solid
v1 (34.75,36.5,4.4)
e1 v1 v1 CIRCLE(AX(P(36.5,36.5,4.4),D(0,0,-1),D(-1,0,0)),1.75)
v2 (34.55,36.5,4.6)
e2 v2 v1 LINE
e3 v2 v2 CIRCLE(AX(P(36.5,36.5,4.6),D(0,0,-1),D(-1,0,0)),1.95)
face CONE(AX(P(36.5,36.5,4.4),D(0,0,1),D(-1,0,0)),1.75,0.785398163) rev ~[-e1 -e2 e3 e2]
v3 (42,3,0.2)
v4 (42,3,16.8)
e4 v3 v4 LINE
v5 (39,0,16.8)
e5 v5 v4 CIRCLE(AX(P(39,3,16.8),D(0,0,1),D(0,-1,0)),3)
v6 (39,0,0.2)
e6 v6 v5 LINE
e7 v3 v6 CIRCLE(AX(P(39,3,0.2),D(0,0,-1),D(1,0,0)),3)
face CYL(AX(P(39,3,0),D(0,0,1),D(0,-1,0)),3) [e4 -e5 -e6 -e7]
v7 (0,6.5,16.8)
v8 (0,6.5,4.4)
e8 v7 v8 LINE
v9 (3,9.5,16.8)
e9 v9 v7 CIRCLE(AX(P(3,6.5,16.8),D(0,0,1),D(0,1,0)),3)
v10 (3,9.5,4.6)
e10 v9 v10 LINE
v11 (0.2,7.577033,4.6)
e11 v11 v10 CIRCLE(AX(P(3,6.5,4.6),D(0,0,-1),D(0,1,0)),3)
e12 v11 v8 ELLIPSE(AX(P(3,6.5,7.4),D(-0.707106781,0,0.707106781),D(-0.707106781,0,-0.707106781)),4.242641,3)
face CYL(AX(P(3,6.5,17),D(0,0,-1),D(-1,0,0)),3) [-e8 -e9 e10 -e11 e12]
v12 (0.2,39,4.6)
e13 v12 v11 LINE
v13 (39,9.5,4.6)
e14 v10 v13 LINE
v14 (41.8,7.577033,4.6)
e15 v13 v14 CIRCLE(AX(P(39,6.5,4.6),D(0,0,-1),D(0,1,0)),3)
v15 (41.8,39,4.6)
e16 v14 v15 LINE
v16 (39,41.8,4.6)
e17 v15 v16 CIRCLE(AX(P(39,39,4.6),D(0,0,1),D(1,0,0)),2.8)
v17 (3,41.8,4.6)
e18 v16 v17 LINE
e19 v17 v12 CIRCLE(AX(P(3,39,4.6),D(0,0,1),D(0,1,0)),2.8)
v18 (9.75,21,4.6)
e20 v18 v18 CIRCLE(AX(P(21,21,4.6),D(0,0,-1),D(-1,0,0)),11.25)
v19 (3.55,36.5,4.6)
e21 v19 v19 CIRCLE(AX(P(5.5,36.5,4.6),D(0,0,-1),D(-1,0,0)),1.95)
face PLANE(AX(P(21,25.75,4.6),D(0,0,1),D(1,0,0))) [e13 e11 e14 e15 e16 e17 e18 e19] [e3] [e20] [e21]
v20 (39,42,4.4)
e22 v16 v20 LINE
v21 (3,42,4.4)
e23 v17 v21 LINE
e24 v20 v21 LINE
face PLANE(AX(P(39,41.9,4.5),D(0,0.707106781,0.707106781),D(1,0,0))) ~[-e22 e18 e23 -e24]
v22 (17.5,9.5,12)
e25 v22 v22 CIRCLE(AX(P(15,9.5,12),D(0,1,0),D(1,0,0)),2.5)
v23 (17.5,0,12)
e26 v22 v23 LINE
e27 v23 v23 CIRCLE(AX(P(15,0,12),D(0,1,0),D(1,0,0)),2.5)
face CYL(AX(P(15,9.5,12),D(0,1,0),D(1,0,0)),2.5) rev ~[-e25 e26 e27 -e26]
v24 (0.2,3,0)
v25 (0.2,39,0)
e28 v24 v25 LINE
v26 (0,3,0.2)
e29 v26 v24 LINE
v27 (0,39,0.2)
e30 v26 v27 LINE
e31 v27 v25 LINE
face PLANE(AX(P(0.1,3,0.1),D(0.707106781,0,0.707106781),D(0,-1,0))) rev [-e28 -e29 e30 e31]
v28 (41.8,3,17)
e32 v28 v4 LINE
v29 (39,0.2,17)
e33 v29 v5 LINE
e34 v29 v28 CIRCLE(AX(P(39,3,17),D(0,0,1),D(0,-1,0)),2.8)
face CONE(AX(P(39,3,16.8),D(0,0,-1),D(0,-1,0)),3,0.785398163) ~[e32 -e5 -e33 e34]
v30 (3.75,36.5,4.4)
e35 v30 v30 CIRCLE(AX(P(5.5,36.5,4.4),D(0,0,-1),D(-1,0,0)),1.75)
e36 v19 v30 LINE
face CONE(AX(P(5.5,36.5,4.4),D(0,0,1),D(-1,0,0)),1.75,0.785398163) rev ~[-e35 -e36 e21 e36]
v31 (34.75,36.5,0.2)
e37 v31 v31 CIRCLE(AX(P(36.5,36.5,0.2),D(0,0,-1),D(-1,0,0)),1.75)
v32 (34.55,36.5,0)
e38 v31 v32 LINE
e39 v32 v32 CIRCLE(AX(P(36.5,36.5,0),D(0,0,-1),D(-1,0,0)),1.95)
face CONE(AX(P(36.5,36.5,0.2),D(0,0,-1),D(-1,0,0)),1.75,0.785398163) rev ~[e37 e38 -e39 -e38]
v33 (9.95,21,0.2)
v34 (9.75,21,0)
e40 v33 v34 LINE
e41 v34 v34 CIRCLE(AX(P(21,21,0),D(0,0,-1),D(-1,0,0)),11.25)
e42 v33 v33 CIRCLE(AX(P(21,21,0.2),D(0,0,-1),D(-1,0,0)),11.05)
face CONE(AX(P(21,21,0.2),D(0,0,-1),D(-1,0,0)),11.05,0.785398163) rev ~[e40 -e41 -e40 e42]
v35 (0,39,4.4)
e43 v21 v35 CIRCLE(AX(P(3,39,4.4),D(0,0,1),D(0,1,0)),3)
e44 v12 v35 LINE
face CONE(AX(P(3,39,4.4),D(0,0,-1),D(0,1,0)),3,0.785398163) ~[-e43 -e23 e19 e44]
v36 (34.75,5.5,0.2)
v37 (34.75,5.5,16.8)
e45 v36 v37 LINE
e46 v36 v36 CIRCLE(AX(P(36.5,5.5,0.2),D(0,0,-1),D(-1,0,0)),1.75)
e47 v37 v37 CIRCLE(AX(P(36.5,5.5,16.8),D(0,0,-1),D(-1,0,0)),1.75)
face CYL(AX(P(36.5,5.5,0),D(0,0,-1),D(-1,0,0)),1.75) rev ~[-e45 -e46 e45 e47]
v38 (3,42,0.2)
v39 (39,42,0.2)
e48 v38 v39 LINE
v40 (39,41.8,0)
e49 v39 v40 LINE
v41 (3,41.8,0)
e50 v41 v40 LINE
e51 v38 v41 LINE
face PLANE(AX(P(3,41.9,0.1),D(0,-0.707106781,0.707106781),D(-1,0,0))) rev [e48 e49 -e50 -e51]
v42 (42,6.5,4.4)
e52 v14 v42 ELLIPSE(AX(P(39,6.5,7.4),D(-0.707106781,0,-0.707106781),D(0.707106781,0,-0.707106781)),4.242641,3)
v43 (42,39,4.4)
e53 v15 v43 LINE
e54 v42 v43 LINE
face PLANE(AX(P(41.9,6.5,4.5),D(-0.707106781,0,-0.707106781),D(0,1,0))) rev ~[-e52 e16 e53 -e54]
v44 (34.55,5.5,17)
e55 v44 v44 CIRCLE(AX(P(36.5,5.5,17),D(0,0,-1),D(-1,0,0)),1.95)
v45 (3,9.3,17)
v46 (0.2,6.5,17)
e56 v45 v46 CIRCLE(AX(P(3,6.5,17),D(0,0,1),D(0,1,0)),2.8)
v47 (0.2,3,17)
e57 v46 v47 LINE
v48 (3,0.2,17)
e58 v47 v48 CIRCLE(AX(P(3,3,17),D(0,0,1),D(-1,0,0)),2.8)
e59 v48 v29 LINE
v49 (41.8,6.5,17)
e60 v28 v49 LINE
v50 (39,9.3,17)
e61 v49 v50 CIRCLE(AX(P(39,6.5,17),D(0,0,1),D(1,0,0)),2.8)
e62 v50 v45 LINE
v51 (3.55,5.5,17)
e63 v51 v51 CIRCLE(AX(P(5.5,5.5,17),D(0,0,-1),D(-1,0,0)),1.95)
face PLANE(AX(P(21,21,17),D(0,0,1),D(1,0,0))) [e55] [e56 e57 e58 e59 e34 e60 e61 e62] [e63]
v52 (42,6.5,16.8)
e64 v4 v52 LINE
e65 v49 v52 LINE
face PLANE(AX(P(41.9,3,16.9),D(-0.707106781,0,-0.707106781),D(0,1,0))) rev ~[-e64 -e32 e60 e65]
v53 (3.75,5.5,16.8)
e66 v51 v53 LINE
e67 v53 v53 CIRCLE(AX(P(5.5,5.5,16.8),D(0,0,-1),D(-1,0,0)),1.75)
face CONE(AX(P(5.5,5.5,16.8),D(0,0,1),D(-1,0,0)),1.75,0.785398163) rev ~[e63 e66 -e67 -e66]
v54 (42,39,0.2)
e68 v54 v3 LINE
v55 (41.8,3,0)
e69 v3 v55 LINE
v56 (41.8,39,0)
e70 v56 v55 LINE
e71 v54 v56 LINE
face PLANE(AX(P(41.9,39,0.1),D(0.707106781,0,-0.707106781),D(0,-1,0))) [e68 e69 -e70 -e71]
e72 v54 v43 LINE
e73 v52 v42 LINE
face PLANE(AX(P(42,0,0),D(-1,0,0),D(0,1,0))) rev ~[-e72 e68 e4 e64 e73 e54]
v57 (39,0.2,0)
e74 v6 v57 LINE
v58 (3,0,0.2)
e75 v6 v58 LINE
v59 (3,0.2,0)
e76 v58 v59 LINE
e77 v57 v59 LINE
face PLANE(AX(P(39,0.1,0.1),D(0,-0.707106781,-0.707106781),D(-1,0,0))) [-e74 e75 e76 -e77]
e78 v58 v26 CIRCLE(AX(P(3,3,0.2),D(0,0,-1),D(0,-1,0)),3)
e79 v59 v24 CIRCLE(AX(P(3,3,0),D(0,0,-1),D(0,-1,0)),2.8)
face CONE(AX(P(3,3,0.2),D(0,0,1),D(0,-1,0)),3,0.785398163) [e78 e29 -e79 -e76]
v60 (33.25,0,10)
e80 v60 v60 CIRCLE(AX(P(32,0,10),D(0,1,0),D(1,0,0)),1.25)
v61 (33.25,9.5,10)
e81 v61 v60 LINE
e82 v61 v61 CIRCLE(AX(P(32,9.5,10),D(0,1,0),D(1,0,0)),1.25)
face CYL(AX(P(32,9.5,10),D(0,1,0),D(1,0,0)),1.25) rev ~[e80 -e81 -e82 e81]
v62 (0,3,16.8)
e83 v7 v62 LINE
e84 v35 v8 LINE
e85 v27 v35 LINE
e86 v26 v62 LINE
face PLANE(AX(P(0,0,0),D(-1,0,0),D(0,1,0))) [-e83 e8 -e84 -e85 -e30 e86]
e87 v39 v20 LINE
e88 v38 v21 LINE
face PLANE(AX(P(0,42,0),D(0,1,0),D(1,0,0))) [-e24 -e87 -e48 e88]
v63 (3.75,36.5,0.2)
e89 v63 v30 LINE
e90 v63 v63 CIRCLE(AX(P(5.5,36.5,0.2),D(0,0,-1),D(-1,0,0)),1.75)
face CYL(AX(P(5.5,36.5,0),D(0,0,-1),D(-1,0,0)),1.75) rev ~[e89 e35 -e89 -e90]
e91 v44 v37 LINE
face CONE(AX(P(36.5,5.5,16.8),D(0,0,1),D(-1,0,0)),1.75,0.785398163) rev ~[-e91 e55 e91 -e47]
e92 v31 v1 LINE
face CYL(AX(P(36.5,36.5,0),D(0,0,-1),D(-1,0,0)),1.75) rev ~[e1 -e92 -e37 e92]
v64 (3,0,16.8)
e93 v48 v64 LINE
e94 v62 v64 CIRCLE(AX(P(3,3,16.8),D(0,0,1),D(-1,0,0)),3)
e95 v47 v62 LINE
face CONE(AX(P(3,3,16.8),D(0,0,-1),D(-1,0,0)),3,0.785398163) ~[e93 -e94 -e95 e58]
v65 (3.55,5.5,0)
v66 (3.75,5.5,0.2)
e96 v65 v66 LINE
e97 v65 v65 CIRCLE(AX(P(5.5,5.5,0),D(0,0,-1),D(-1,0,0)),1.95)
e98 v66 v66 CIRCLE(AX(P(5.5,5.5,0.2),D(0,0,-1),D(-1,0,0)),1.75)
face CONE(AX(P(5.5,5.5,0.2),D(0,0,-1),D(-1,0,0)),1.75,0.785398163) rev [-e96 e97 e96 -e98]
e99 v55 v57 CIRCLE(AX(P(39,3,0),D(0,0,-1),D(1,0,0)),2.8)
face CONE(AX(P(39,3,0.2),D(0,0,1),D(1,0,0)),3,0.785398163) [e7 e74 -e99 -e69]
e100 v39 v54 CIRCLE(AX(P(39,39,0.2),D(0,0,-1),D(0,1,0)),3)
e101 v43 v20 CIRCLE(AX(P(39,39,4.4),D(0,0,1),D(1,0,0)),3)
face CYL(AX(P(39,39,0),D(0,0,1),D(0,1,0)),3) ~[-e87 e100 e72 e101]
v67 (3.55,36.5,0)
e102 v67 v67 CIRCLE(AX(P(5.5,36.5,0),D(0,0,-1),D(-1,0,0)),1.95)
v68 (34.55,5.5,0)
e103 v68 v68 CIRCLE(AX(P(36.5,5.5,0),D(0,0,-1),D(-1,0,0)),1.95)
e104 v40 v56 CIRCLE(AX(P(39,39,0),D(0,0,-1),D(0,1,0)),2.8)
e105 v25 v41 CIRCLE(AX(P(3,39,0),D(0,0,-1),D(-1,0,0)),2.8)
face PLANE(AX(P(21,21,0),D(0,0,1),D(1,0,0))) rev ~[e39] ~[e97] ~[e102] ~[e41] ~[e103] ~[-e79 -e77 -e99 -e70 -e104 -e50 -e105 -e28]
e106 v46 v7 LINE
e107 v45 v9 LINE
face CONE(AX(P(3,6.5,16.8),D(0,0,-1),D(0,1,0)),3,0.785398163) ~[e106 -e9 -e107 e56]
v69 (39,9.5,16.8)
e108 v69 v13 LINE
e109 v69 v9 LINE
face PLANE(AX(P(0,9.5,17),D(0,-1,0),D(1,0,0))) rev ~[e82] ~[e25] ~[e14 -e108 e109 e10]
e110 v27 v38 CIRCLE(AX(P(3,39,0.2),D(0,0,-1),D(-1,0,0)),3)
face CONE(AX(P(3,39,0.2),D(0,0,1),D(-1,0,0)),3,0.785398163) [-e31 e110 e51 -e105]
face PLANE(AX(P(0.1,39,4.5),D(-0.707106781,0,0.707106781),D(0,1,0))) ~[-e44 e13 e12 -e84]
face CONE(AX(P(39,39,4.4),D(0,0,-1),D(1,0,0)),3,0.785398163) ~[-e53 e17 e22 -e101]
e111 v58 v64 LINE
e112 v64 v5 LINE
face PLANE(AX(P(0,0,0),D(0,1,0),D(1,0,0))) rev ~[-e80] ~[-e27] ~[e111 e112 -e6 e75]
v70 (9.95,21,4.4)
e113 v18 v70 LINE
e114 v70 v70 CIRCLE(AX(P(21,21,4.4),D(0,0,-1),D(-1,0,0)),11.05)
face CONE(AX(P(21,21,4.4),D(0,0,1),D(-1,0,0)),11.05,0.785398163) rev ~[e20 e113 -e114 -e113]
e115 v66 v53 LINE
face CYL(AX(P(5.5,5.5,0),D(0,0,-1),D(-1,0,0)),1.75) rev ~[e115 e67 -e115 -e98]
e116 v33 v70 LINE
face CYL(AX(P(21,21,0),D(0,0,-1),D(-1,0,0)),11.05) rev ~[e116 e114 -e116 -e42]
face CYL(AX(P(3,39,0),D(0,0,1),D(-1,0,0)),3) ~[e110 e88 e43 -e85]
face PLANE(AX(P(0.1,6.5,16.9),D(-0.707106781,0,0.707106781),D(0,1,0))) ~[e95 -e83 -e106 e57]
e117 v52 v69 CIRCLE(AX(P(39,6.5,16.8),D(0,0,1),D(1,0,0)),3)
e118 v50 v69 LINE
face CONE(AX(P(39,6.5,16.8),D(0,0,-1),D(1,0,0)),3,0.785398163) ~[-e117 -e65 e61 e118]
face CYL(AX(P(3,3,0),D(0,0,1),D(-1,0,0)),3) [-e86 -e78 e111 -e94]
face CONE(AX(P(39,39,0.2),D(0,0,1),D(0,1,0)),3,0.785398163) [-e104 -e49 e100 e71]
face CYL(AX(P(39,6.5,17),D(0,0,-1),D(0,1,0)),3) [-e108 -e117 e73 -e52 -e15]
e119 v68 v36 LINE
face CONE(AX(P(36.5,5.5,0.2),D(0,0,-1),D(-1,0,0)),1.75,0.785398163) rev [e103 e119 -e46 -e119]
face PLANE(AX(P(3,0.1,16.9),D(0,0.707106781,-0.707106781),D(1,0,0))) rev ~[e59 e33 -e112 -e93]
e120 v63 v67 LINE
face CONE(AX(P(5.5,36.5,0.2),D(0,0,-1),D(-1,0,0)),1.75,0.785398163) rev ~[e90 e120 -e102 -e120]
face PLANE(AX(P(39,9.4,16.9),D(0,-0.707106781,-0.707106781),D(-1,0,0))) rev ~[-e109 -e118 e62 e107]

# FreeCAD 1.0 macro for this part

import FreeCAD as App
import Part
import Sketcher

V = App.Vector
Q = App.Units.Quantity


def edges_at(feature, points):
    """Names of the edges that pass closest to the given points."""
    edges = feature.Shape.Edges
    near = lambda p: min(range(len(edges)), key=lambda i: edges[i].distToShape(Part.Vertex(*p))[0])
    return sorted({f"Edge{near(p) + 1}" for p in points})

doc = App.newDocument("Part")
params = doc.addObject("Spreadsheet::Sheet", "Params")
for row, (alias, value) in enumerate([
    ("sketch1_width", "42 mm"),
    ("pad1_length", "17 mm"),
    ("sketch2_width", "42 mm"),
    ("sketch2_height", "32.5 mm"),
    ("pocket1_length", "12.4 mm"),
    ("sketch3_diameter", "22.1 mm"),
    ("pocket2_length", "12.4 mm"),
    ("sketch4_diameter", "5 mm"),
    ("pocket3_length", "12.4 mm"),
    ("sketch5_diameter", "2.5 mm"),
    ("pocket4_length", "12.4 mm"),
    ("fillet_radius", "3 mm"),
    ("chamfer_size", "0.2 mm"),
    ("chamfer2_size", "0.2 mm"),
    ("chamfer3_size", "0.2 mm"),
    ("sketch6_diameter", "3.5 mm"),
    ("pocket5_length", "26 mm"),
    ("chamfer4_size", "0.2 mm"),
], start=1):
    params.set(f"A{row}", alias)
    params.set(f"B{row}", "=" + value)
    params.setAlias(f"B{row}", alias)

body = doc.addObject("PartDesign::Body", "Body")

sketch1 = body.newObject("Sketcher::SketchObject", "Sketch")
sketch1.AttachmentSupport = (doc.getObject("XY_Plane"), [""])
sketch1.MapMode = "FlatFace"
sketch1.addGeometry([
    Part.LineSegment(V(0, 42, 0), V(0, 0, 0)),
    Part.LineSegment(V(0, 0, 0), V(42, 0, 0)),
    Part.LineSegment(V(42, 0, 0), V(42, 42, 0)),
    Part.LineSegment(V(42, 42, 0), V(0, 42, 0)),
], False)
sketch1.addConstraint([
    Sketcher.Constraint("Coincident", 0, 2, 1, 1),
    Sketcher.Constraint("Coincident", 1, 2, 2, 1),
    Sketcher.Constraint("Coincident", 2, 2, 3, 1),
    Sketcher.Constraint("Coincident", 3, 2, 0, 1),
    Sketcher.Constraint("Vertical", 0),
    Sketcher.Constraint("Horizontal", 1),
    Sketcher.Constraint("Vertical", 2),
    Sketcher.Constraint("Horizontal", 3),
    Sketcher.Constraint("Coincident", 0, 2, -1, 1),
    Sketcher.Constraint("Equal", 3, 0),
    Sketcher.Constraint("DistanceX", 1, 1, 1, 2, Q("42 mm")),
])
sketch1.setExpression("Constraints[10]", "Params.sketch1_width")
pad1 = body.newObject("PartDesign::Pad", "Pad")
pad1.Profile = sketch1
pad1.setExpression("Length", "Params.pad1_length")

sketch2 = body.newObject("Sketcher::SketchObject", "Sketch001")
sketch2.AttachmentSupport = (doc.getObject("XY_Plane"), [""])
sketch2.MapMode = "FlatFace"
sketch2.AttachmentOffset = App.Placement(V(0, 0, 17), App.Rotation())
sketch2.addGeometry([
    Part.LineSegment(V(0, 42, 0), V(0, 10, 0)),
    Part.LineSegment(V(0, 10, 0), V(42, 10, 0)),
    Part.LineSegment(V(42, 10, 0), V(42, 42, 0)),
    Part.LineSegment(V(42, 42, 0), V(0, 42, 0)),
], False)
sketch2.addConstraint([
    Sketcher.Constraint("Coincident", 0, 2, 1, 1),
    Sketcher.Constraint("Coincident", 1, 2, 2, 1),
    Sketcher.Constraint("Coincident", 2, 2, 3, 1),
    Sketcher.Constraint("Coincident", 3, 2, 0, 1),
    Sketcher.Constraint("Vertical", 0),
    Sketcher.Constraint("Horizontal", 1),
    Sketcher.Constraint("Vertical", 2),
    Sketcher.Constraint("Horizontal", 3),
    Sketcher.Constraint("PointOnObject", 0, 2, -2),
    Sketcher.Constraint("DistanceX", 1, 1, 1, 2, Q("42 mm")),
    Sketcher.Constraint("DistanceY", 0, 2, 0, 1, Q("32.5 mm")),
    Sketcher.Constraint("DistanceY", -1, 1, 2, 2, Q("42 mm")),
])
sketch2.setExpression("Constraints[9]", "Params.sketch2_width")
sketch2.setExpression("Constraints[10]", "Params.sketch2_height")
pocket1 = body.newObject("PartDesign::Pocket", "Pocket")
pocket1.Profile = sketch2
pocket1.setExpression("Length", "Params.pocket1_length")

sketch3 = body.newObject("Sketcher::SketchObject", "Sketch002")
sketch3.AttachmentSupport = (doc.getObject("XY_Plane"), [""])
sketch3.MapMode = "FlatFace"
sketch3.addGeometry(Part.Circle(V(21, 21, 0), V(0, 0, 1), 11), False)
sketch3.addConstraint([
    Sketcher.Constraint("Diameter", 0, Q("22.1 mm")),
    Sketcher.Constraint("DistanceX", -1, 1, 0, 3, Q("21 mm")),
    Sketcher.Constraint("DistanceY", -1, 1, 0, 3, Q("21 mm")),
])
sketch3.setExpression("Constraints[0]", "Params.sketch3_diameter")
pocket2 = body.newObject("PartDesign::Pocket", "Pocket001")
pocket2.Profile = sketch3
pocket2.setExpression("Length", "Params.pocket2_length")
pocket2.Reversed = True

sketch4 = body.newObject("Sketcher::SketchObject", "Sketch003")
sketch4.AttachmentSupport = (doc.getObject("XZ_Plane"), [""])
sketch4.MapMode = "FlatFace"
sketch4.AttachmentOffset = App.Placement(V(0, 0, -9.5), App.Rotation())
sketch4.addGeometry(Part.Circle(V(15, 12, 0), V(0, 0, 1), 2.5), False)
sketch4.addConstraint([
    Sketcher.Constraint("Diameter", 0, Q("5 mm")),
    Sketcher.Constraint("DistanceX", -1, 1, 0, 3, Q("15 mm")),
    Sketcher.Constraint("DistanceY", -1, 1, 0, 3, Q("12 mm")),
])
sketch4.setExpression("Constraints[0]", "Params.sketch4_diameter")
pocket3 = body.newObject("PartDesign::Pocket", "Pocket002")
pocket3.Profile = sketch4
pocket3.setExpression("Length", "Params.pocket3_length")
pocket3.Reversed = True

sketch5 = body.newObject("Sketcher::SketchObject", "Sketch004")
sketch5.AttachmentSupport = (doc.getObject("XZ_Plane"), [""])
sketch5.MapMode = "FlatFace"
sketch5.AttachmentOffset = App.Placement(V(0, 0, -9.5), App.Rotation())
sketch5.addGeometry(Part.Circle(V(32, 10, 0), V(0, 0, 1), 1.2), False)
sketch5.addConstraint([
    Sketcher.Constraint("Diameter", 0, Q("2.5 mm")),
    Sketcher.Constraint("DistanceX", -1, 1, 0, 3, Q("32 mm")),
    Sketcher.Constraint("DistanceY", -1, 1, 0, 3, Q("10 mm")),
])
sketch5.setExpression("Constraints[0]", "Params.sketch5_diameter")
pocket4 = body.newObject("PartDesign::Pocket", "Pocket003")
pocket4.Profile = sketch5
pocket4.setExpression("Length", "Params.pocket4_length")
pocket4.Reversed = True
doc.recompute()

fillet = body.newObject("PartDesign::Fillet", "Fillet")
fillet.Base = (pocket4, edges_at(pocket4, [
    (0, 42, 2.3),
    (42, 42, 2.3),
    (0, 9.5, 10.8),
    (42, 9.5, 10.8),
    (42, 0, 8.5),
    (0, 0, 8.5),
]))
fillet.setExpression("Radius", "Params.fillet_radius")
doc.recompute()

chamfer = body.newObject("PartDesign::Chamfer", "Chamfer")
chamfer.Base = (fillet, edges_at(fillet, [
    (32.05, 21, 0),
    (21, 42, 0),
    (0, 21, 0),
    (42, 21, 0),
    (21, 0, 0),
    (0.879, 0.879, 0),
    (41.121, 0.879, 0),
    (0.879, 41.121, 0),
    (41.121, 41.121, 0),
]))
chamfer.setExpression("Size", "Params.chamfer_size")
doc.recompute()

chamfer2 = body.newObject("PartDesign::Chamfer", "Chamfer001")
chamfer2.Base = (chamfer, edges_at(chamfer, [
    (42, 22.75, 4.6),
    (21, 42, 4.6),
    (42, 4.75, 17),
    (0, 22.75, 4.6),
    (0.879, 41.121, 4.6),
    (41.121, 41.121, 4.6),
    (0, 4.75, 17),
    (21, 0, 17),
    (21, 9.5, 17),
    (0.879, 8.621, 17),
    (0.879, 0.879, 17),
    (41.121, 8.621, 17),
    (41.121, 0.879, 17),
]))
chamfer2.setExpression("Size", "Params.chamfer2_size")
doc.recompute()

chamfer3 = body.newObject("PartDesign::Chamfer", "Chamfer002")
chamfer3.Base = (chamfer2, edges_at(chamfer2, [(32.05, 21, 4.6)]))
chamfer3.setExpression("Size", "Params.chamfer3_size")

sketch6 = body.newObject("Sketcher::SketchObject", "Sketch005")
sketch6.AttachmentSupport = (doc.getObject("XY_Plane"), [""])
sketch6.MapMode = "FlatFace"
sketch6.addGeometry([
    Part.Circle(V(5.5, 36.5, 0), V(0, 0, 1), 1.8),
    Part.Circle(V(36.5, 36.5, 0), V(0, 0, 1), 1.8),
    Part.Circle(V(5.5, 5.5, 0), V(0, 0, 1), 1.8),
    Part.Circle(V(36.5, 5.5, 0), V(0, 0, 1), 1.8),
], False)
sketch6.addConstraint([
    Sketcher.Constraint("Equal", 0, 1),
    Sketcher.Constraint("Equal", 1, 2),
    Sketcher.Constraint("Equal", 2, 3),
    Sketcher.Constraint("Horizontal", 0, 3, 1, 3),
    Sketcher.Constraint("Horizontal", 2, 3, 3, 3),
    Sketcher.Constraint("Vertical", 0, 3, 2, 3),
    Sketcher.Constraint("Vertical", 1, 3, 3, 3),
    Sketcher.Constraint("Diameter", 0, Q("3.5 mm")),
    Sketcher.Constraint("DistanceX", 0, 3, 1, 3, Q("31 mm")),
    Sketcher.Constraint("DistanceY", 2, 3, 0, 3, Q("31 mm")),
    Sketcher.Constraint("DistanceX", -1, 1, 0, 3, Q("5.5 mm")),
    Sketcher.Constraint("DistanceY", -1, 1, 0, 3, Q("36.5 mm")),
])
sketch6.setExpression("Constraints[7]", "Params.sketch6_diameter")
pocket5 = body.newObject("PartDesign::Pocket", "Pocket004")
pocket5.Profile = sketch6
pocket5.setExpression("Length", "Params.pocket5_length")
pocket5.Reversed = True
doc.recompute()

chamfer4 = body.newObject("PartDesign::Chamfer", "Chamfer003")
chamfer4.Base = (pocket5, edges_at(pocket5, [
    (7.25, 36.5, 4.6),
    (7.25, 36.5, 0),
    (38.25, 36.5, 4.6),
    (38.25, 36.5, 0),
    (7.25, 5.5, 17),
    (7.25, 5.5, 0),
    (38.25, 5.5, 17),
    (38.25, 5.5, 0),
]))
chamfer4.setExpression("Size", "Params.chamfer4_size")

doc.recompute()
